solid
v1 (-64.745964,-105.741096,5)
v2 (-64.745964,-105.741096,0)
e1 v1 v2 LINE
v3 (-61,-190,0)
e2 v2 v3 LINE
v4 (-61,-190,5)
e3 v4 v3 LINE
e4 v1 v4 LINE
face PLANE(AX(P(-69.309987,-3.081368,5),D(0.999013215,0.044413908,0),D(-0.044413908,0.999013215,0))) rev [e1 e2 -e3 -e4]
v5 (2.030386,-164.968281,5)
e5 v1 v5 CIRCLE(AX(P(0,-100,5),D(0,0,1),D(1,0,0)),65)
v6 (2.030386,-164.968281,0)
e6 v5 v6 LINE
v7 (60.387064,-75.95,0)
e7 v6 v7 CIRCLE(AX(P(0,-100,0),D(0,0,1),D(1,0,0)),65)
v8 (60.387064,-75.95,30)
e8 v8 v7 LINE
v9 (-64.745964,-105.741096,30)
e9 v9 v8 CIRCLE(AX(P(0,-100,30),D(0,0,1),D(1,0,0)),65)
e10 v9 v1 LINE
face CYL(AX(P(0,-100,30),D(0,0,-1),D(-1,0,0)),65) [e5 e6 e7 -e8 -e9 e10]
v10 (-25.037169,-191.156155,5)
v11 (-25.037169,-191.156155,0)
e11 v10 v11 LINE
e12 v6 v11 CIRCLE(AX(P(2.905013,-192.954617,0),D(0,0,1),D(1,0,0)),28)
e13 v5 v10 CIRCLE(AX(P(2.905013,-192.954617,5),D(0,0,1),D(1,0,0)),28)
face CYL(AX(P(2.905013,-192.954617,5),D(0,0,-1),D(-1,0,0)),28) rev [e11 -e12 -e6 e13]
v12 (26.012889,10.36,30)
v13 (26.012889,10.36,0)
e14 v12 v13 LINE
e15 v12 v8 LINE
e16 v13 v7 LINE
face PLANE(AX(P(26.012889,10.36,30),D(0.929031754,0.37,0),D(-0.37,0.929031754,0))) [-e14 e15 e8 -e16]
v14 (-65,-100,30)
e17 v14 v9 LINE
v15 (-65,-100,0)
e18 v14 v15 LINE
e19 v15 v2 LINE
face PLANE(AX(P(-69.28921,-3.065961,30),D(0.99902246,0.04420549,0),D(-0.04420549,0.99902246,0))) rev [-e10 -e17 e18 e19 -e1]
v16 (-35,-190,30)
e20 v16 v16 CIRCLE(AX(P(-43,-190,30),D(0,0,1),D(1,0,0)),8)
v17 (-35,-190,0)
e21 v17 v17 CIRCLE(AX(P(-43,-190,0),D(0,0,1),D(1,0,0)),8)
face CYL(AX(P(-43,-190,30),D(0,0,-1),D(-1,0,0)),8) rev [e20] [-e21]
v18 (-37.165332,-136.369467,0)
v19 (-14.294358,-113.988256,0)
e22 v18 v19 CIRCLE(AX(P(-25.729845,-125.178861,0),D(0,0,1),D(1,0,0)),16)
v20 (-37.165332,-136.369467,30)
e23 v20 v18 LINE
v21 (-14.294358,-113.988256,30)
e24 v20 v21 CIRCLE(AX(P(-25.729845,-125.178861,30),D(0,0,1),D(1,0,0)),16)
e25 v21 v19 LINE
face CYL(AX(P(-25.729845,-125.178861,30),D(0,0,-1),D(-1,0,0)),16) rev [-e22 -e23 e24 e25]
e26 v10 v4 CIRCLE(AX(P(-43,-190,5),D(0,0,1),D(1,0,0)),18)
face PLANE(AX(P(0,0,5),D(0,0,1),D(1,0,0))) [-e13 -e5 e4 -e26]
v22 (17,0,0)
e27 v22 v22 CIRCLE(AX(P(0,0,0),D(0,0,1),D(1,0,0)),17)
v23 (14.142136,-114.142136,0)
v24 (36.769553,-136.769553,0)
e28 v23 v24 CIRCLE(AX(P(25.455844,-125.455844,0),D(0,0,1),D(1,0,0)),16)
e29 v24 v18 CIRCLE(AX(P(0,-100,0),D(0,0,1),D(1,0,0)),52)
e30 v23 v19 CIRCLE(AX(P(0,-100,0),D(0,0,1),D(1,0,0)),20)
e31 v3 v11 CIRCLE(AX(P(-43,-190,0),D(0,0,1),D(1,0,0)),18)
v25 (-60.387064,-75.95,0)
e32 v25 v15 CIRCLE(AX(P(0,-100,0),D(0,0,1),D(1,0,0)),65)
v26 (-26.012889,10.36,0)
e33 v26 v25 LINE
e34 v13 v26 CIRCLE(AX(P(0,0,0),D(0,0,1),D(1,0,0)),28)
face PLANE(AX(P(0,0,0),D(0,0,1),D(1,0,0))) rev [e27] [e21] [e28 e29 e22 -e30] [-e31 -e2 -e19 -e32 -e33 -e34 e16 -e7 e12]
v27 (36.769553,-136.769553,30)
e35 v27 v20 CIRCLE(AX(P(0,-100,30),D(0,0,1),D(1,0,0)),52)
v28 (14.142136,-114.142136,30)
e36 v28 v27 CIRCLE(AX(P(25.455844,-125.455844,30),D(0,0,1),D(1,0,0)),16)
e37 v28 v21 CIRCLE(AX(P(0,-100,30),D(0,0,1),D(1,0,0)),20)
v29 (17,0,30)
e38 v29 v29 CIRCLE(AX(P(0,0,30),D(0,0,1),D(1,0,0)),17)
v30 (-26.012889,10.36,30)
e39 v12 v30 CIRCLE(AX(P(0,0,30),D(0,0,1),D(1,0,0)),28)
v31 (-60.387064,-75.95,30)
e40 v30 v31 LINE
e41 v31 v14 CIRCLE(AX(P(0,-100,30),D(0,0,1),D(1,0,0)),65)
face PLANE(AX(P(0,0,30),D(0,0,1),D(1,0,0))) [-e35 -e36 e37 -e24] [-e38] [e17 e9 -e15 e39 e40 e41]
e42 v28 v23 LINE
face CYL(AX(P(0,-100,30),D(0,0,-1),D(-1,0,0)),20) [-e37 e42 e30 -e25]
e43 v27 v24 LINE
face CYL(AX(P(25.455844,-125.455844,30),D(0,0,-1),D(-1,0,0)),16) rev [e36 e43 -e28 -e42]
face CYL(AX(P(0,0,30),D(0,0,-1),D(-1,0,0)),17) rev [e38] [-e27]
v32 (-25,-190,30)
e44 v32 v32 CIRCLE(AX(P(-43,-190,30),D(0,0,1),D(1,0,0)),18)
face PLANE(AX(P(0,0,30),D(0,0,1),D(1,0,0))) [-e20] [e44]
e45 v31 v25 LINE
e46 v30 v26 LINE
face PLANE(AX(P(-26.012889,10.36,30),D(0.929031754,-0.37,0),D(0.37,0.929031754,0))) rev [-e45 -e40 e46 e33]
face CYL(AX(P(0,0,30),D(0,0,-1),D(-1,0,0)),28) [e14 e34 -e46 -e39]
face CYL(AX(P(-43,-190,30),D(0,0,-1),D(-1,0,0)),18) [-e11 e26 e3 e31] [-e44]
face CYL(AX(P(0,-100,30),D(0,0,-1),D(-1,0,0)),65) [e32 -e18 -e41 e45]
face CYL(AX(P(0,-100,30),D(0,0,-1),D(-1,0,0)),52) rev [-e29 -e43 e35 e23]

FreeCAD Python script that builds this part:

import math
import FreeCAD as App
import Part
import Sketcher
from FreeCAD import Vector
Q = App.Units.Quantity

doc = App.newDocument("Part")
body = doc.addObject("PartDesign::Body", "Body")

# Sketch on XY plane
sketch1 = body.newObject("Sketcher::SketchObject", "Sketch")
sketch1.AttachmentSupport = (doc.getObject("XY_Plane"), [""])
sketch1.MapMode = "FlatFace"
sketch1.addGeometry([
    Part.LineSegment(Vector(60.387064, -75.95, 0), Vector(26.012889, 10.36, 0)),  # 0
    Part.ArcOfCircle(Part.Circle(Vector(0, 0, 0), Vector(0, 0, 1), 28), math.radians(21.715617), math.radians(158.284383)),  # 1
    Part.LineSegment(Vector(-26.012889, 10.36, 0), Vector(-60.387064, -75.95, 0)),  # 2
    Part.ArcOfCircle(Part.Circle(Vector(0, -100, 0), Vector(0, 0, 1), 65), math.radians(158.284383), math.radians(180)),  # 3
    Part.LineSegment(Vector(-65, -100, 0), Vector(-64.745964, -105.741096, 0)),  # 4
    Part.ArcOfCircle(Part.Circle(Vector(0, -100, 0), Vector(0, 0, 1), 65), math.radians(-174.932773), math.radians(21.715617)),  # 5
    Part.ArcOfCircle(Part.Circle(Vector(-25.729845, -125.178861, 0), Vector(0, 0, 1), 16), math.radians(-135.620087), math.radians(44.379913)),  # 6
    Part.ArcOfCircle(Part.Circle(Vector(0, -100, 0), Vector(0, 0, 1), 52), math.radians(-45), math.radians(224.379913)),  # 7
    Part.ArcOfCircle(Part.Circle(Vector(25.455844, -125.455844, 0), Vector(0, 0, 1), 16), math.radians(135), math.radians(315)),  # 8
    Part.ArcOfCircle(Part.Circle(Vector(0, -100, 0), Vector(0, 0, 1), 20), math.radians(-45), math.radians(224.379913)),  # 9
    Part.Circle(Vector(0, 0, 0), Vector(0, 0, 1), 17),  # 10
], False)
sketch1.addConstraint([
    Sketcher.Constraint("Tangent", 0, 2, 1, 1),
    Sketcher.Constraint("Tangent", 1, 2, 2, 1),
    Sketcher.Constraint("Tangent", 2, 2, 3, 1),
    Sketcher.Constraint("Coincident", 3, 2, 4, 1),
    Sketcher.Constraint("Coincident", 4, 2, 5, 1),
    Sketcher.Constraint("Tangent", 5, 2, 0, 1),
    Sketcher.Constraint("Tangent", 6, 1, 7, 2),
    Sketcher.Constraint("Tangent", 7, 1, 8, 2),
    Sketcher.Constraint("Tangent", 8, 1, 9, 1),
    Sketcher.Constraint("Tangent", 9, 2, 6, 2),
    Sketcher.Constraint("Coincident", 1, 3, -1, 1),
    Sketcher.Constraint("Coincident", 10, 3, -1, 1),
    Sketcher.Constraint("Coincident", 5, 3, 3, 3),
    Sketcher.Constraint("Coincident", 7, 3, 3, 3),
    Sketcher.Constraint("Coincident", 9, 3, 3, 3),
    Sketcher.Constraint("Equal", 3, 5),
    Sketcher.Constraint("PointOnObject", 3, 3, -2),
    Sketcher.Constraint("Horizontal", 9, 3, 3, 2),
    Sketcher.Constraint("Diameter", 10, Q("34 mm")),
    Sketcher.Constraint("Radius", 1, Q("28 mm")),
    Sketcher.Constraint("Radius", 3, Q("65 mm")),
    Sketcher.Constraint("Radius", 6, Q("16 mm")),
    Sketcher.Constraint("Radius", 7, Q("52 mm")),
    Sketcher.Constraint("DistanceY", 3, 3, -1, 1, Q("100 mm")),
    Sketcher.Constraint("DistanceX", 4, 2, 2, 2, Q("4.3589 mm")),
    Sketcher.Constraint("DistanceY", 6, 3, -1, 1, Q("125.178861 mm")),
    Sketcher.Constraint("DistanceX", 6, 3, 8, 3, Q("51.185689 mm")),
])
pad1 = body.newObject("PartDesign::Pad", "Pad")
pad1.Profile = sketch1
pad1.Length = 30
body2 = doc.addObject("PartDesign::Body", "Body001")

# Sketch on XY plane
sketch2 = body2.newObject("Sketcher::SketchObject", "Sketch001")
sketch2.AttachmentSupport = (doc.getObject("XY_Plane001"), [""])
sketch2.MapMode = "FlatFace"
sketch2.addGeometry([
    Part.Circle(Vector(-43, -190, 0), Vector(0, 0, 1), 18),
    Part.Circle(Vector(-43, -190, 0), Vector(0, 0, 1), 8),
], False)
sketch2.addConstraint([
    Sketcher.Constraint("Coincident", 1, 3, 0, 3),
    Sketcher.Constraint("Diameter", 0, Q("36 mm")),
    Sketcher.Constraint("Diameter", 1, Q("16 mm")),
    Sketcher.Constraint("DistanceX", 0, 3, -1, 1, Q("43 mm")),
    Sketcher.Constraint("DistanceY", 0, 3, -1, 1, Q("190 mm")),
])
pad2 = body2.newObject("PartDesign::Pad", "Pad001")
pad2.Profile = sketch2
pad2.Length = 30
body.AllowCompound = True
doc.recompute()

boolean = body.newObject("PartDesign::Boolean", "Boolean")
boolean.Type = "Fuse"
boolean.addObjects([body2])

# Sketch on XY plane
sketch3 = body.newObject("Sketcher::SketchObject", "Sketch002")
sketch3.AttachmentSupport = (doc.getObject("XY_Plane"), [""])
sketch3.MapMode = "FlatFace"
sketch3.addGeometry([
    Part.ArcOfCircle(Part.Circle(Vector(0, -100, 0), Vector(0, 0, 1), 65), math.radians(-174.932773), math.radians(-88.209978)),  # 0
    Part.LineSegment(Vector(-64.745964, -105.741096, 0), Vector(-61, -190, 0)),  # 1
    Part.ArcOfCircle(Part.Circle(Vector(-43, -190, 0), Vector(0, 0, 1), 18), math.radians(0), math.radians(180)),  # 2
    Part.ArcOfCircle(Part.Circle(Vector(-43, -190, 0), Vector(0, 0, 1), 18), math.radians(-3.68269), math.radians(0)),  # 3
    Part.ArcOfCircle(Part.Circle(Vector(2.905013, -192.954617, 0), Vector(0, 0, 1), 28), math.radians(91.790022), math.radians(176.31731)),  # 4
], False)
sketch3.addConstraint([
    Sketcher.Constraint("Coincident", 0, 1, 1, 1),
    Sketcher.Constraint("Coincident", 1, 2, 2, 2),
    Sketcher.Constraint("Tangent", 2, 1, 3, 2),
    Sketcher.Constraint("Tangent", 3, 1, 4, 2),
    Sketcher.Constraint("Tangent", 4, 1, 0, 2),
    Sketcher.Constraint("Equal", 2, 3),
    Sketcher.Constraint("PointOnObject", 0, 3, -2),
    Sketcher.Constraint("Horizontal", 3, 3, 1, 2),
    Sketcher.Constraint("Horizontal", 1, 2, 2, 1),
    Sketcher.Constraint("Radius", 0, Q("65 mm")),
    Sketcher.Constraint("Radius", 2, Q("18 mm")),
    Sketcher.Constraint("Radius", 4, Q("28 mm")),
    Sketcher.Constraint("DistanceY", 0, 3, -1, 1, Q("100 mm")),
    Sketcher.Constraint("DistanceX", 2, 3, -1, 1, Q("43 mm")),
    Sketcher.Constraint("DistanceY", 2, 3, -1, 1, Q("190 mm")),
    Sketcher.Constraint("Distance", 1, Q("84.342131 mm")),
])
pad3 = body.newObject("PartDesign::Pad", "Pad002")
pad3.Profile = sketch3
pad3.Length = 5

doc.recompute()
